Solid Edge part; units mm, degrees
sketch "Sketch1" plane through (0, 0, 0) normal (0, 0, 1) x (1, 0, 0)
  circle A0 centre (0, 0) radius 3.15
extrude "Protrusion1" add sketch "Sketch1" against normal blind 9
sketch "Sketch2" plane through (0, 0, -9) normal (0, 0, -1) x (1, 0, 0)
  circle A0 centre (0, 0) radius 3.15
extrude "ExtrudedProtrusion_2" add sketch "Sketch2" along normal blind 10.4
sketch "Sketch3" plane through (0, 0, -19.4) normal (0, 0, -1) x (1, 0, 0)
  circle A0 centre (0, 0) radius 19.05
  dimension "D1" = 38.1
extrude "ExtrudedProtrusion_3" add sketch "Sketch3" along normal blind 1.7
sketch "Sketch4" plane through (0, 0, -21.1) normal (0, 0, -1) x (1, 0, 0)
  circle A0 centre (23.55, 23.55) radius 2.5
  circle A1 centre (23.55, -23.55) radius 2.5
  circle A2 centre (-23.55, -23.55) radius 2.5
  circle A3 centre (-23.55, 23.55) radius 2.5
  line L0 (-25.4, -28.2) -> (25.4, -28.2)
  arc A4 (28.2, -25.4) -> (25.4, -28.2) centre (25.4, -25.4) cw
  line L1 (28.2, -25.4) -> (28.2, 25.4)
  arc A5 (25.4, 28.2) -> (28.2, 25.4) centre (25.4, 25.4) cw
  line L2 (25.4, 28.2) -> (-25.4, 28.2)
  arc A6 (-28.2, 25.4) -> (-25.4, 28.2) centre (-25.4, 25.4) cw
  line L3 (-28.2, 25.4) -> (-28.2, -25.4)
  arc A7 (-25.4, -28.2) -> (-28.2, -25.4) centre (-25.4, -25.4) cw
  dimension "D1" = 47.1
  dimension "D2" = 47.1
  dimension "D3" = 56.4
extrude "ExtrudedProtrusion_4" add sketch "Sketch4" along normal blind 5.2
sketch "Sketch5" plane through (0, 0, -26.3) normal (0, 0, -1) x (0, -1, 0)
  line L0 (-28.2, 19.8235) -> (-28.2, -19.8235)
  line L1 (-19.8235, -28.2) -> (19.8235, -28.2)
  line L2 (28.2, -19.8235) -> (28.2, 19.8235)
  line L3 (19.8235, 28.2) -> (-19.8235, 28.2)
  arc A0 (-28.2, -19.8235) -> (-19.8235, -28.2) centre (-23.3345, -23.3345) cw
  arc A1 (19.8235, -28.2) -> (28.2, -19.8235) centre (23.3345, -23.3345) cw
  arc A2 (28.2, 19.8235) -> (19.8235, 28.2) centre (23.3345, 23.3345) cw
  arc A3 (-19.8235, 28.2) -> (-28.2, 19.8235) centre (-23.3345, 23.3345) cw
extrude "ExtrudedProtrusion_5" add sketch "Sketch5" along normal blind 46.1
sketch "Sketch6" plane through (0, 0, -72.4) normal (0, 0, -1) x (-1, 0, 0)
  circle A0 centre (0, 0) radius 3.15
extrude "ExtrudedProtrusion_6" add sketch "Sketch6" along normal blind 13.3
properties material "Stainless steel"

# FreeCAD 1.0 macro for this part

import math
import FreeCAD as App
import Part
import Sketcher
Q = App.Units.Quantity

doc = App.newDocument("Part")
body = doc.addObject("PartDesign::Body", "Body")

sketch1 = body.newObject("Sketcher::SketchObject", "Sketch")
sketch1.AttachmentSupport = (doc.getObject("XY_Plane"), [""])
sketch1.MapMode = "FlatFace"
sketch1.addGeometry(Part.Circle(App.Vector(0, 0, 0), App.Vector(0, 0, 1), 3.1), False)
sketch1.addConstraint([
    Sketcher.Constraint("Coincident", 0, 3, -1, 1),
    Sketcher.Constraint("Diameter", 0, Q("6.3 mm")),
])
pad1 = body.newObject("PartDesign::Pad", "Pad")
pad1.Profile = sketch1
pad1.Length = 9
pad1.Reversed = True

sketch2 = body.newObject("Sketcher::SketchObject", "Sketch001")
sketch2.AttachmentSupport = (doc.getObject("XY_Plane"), [""])
sketch2.MapMode = "FlatFace"
sketch2.AttachmentOffset = App.Placement(App.Vector(0, 0, -9), App.Rotation())
sketch2.addGeometry(Part.Circle(App.Vector(0, 0, 0), App.Vector(0, 0, 1), 3.1), False)
sketch2.addConstraint([
    Sketcher.Constraint("Coincident", 0, 3, -1, 1),
    Sketcher.Constraint("Diameter", 0, Q("6.3 mm")),
])
pad2 = body.newObject("PartDesign::Pad", "Pad001")
pad2.Profile = sketch2
pad2.Length = 10.4
pad2.Reversed = True

sketch3 = body.newObject("Sketcher::SketchObject", "Sketch002")
sketch3.AttachmentSupport = (doc.getObject("XY_Plane"), [""])
sketch3.MapMode = "FlatFace"
sketch3.AttachmentOffset = App.Placement(App.Vector(0, 0, -19.4), App.Rotation())
sketch3.addGeometry(Part.Circle(App.Vector(0, 0, 0), App.Vector(0, 0, 1), 19), False)
sketch3.addConstraint([
    Sketcher.Constraint("Coincident", 0, 3, -1, 1),
    Sketcher.Constraint("Diameter", 0, Q("38.1 mm")),
])
pad3 = body.newObject("PartDesign::Pad", "Pad002")
pad3.Profile = sketch3
pad3.Length = 1.7
pad3.Reversed = True

sketch4 = body.newObject("Sketcher::SketchObject", "Sketch003")
sketch4.AttachmentSupport = (doc.getObject("XY_Plane"), [""])
sketch4.MapMode = "FlatFace"
sketch4.AttachmentOffset = App.Placement(App.Vector(0, 0, -21.1), App.Rotation())
sketch4.addGeometry([
    Part.ArcOfCircle(Part.Circle(App.Vector(-25.4, 25.4, 0), App.Vector(0, 0, 1), 2.8), math.radians(90), math.radians(180)),
    Part.LineSegment(App.Vector(-25.4, 28.2, 0), App.Vector(25.4, 28.2, 0)),
    Part.ArcOfCircle(Part.Circle(App.Vector(25.4, 25.4, 0), App.Vector(0, 0, 1), 2.8), math.radians(0), math.radians(90)),
    Part.LineSegment(App.Vector(28.2, 25.4, 0), App.Vector(28.2, -25.4, 0)),
    Part.ArcOfCircle(Part.Circle(App.Vector(25.4, -25.4, 0), App.Vector(0, 0, 1), 2.8), math.radians(-90), math.radians(0)),
    Part.LineSegment(App.Vector(25.4, -28.2, 0), App.Vector(-25.4, -28.2, 0)),
    Part.ArcOfCircle(Part.Circle(App.Vector(-25.4, -25.4, 0), App.Vector(0, 0, 1), 2.8), math.radians(180), math.radians(270)),
    Part.LineSegment(App.Vector(-28.2, -25.4, 0), App.Vector(-28.2, 25.4, 0)),
    Part.Circle(App.Vector(-23.6, 23.6, 0), App.Vector(0, 0, 1), 2.5),
    Part.Circle(App.Vector(23.6, 23.6, 0), App.Vector(0, 0, 1), 2.5),
    Part.Circle(App.Vector(-23.6, -23.6, 0), App.Vector(0, 0, 1), 2.5),
    Part.Circle(App.Vector(23.6, -23.6, 0), App.Vector(0, 0, 1), 2.5),
], False)
sketch4.addConstraint([
    Sketcher.Constraint("Tangent", 0, 1, 1, 1),
    Sketcher.Constraint("Tangent", 1, 2, 2, 2),
    Sketcher.Constraint("Tangent", 2, 1, 3, 1),
    Sketcher.Constraint("Tangent", 3, 2, 4, 2),
    Sketcher.Constraint("Tangent", 4, 1, 5, 1),
    Sketcher.Constraint("Tangent", 5, 2, 6, 2),
    Sketcher.Constraint("Tangent", 6, 1, 7, 1),
    Sketcher.Constraint("Tangent", 7, 2, 0, 2),
    Sketcher.Constraint("Horizontal", 1),
    Sketcher.Constraint("Vertical", 3),
    Sketcher.Constraint("Horizontal", 5),
    Sketcher.Constraint("Vertical", 7),
    Sketcher.Constraint("Equal", 0, 2),
    Sketcher.Constraint("Equal", 2, 4),
    Sketcher.Constraint("Equal", 4, 6),
    Sketcher.Constraint("Equal", 8, 9),
    Sketcher.Constraint("Equal", 9, 10),
    Sketcher.Constraint("Equal", 10, 11),
    Sketcher.Constraint("Symmetric", 0, 3, 4, 3, -1, 1),
    Sketcher.Constraint("Symmetric", 9, 3, 10, 3, -1, 1),
    Sketcher.Constraint("Symmetric", 8, 3, 11, 3, -1, 1),
    Sketcher.Constraint("Symmetric", 8, 3, 9, 3, -2),
    Sketcher.Constraint("Equal", 5, 3),
    Sketcher.Constraint("Diameter", 8, Q("5 mm")),
    Sketcher.Constraint("Radius", 0, Q("2.8 mm")),
    Sketcher.Constraint("DistanceX", 1, 1, 1, 2, Q("50.8 mm")),
    Sketcher.Constraint("DistanceX", 8, 3, 9, 3, Q("47.1 mm")),
    Sketcher.Constraint("DistanceY", 10, 3, 8, 3, Q("47.1 mm")),
])
pad4 = body.newObject("PartDesign::Pad", "Pad003")
pad4.Profile = sketch4
pad4.Length = 5.2
pad4.Reversed = True

sketch5 = body.newObject("Sketcher::SketchObject", "Sketch004")
sketch5.AttachmentSupport = (doc.getObject("XY_Plane"), [""])
sketch5.MapMode = "FlatFace"
sketch5.AttachmentOffset = App.Placement(App.Vector(0, 0, -26.3), App.Rotation())
sketch5.addGeometry([
    Part.ArcOfCircle(Part.Circle(App.Vector(-23, 23, 0), App.Vector(0, 0, 1), 6), math.radians(-144), math.radians(54)),
    Part.LineSegment(App.Vector(-20, 28, 0), App.Vector(20, 28, 0)),
    Part.ArcOfCircle(Part.Circle(App.Vector(23, 23, 0), App.Vector(0, 0, 1), 6), math.radians(126), math.radians(324)),
    Part.LineSegment(App.Vector(28, 20, 0), App.Vector(28, -20, 0)),
    Part.ArcOfCircle(Part.Circle(App.Vector(23, -23, 0), App.Vector(0, 0, 1), 6), math.radians(36), math.radians(234)),
    Part.LineSegment(App.Vector(20, -28, 0), App.Vector(-20, -28, 0)),
    Part.ArcOfCircle(Part.Circle(App.Vector(-23, -23, 0), App.Vector(0, 0, 1), 6), math.radians(-54), math.radians(144)),
    Part.LineSegment(App.Vector(-28, -20, 0), App.Vector(-28, 20, 0)),
], False)
sketch5.addConstraint([
    Sketcher.Constraint("Coincident", 0, 2, 1, 1),
    Sketcher.Constraint("Coincident", 1, 2, 2, 1),
    Sketcher.Constraint("Coincident", 2, 2, 3, 1),
    Sketcher.Constraint("Coincident", 3, 2, 4, 1),
    Sketcher.Constraint("Coincident", 4, 2, 5, 1),
    Sketcher.Constraint("Coincident", 5, 2, 6, 1),
    Sketcher.Constraint("Coincident", 6, 2, 7, 1),
    Sketcher.Constraint("Coincident", 7, 2, 0, 1),
    Sketcher.Constraint("Horizontal", 1),
    Sketcher.Constraint("Vertical", 3),
    Sketcher.Constraint("Horizontal", 5),
    Sketcher.Constraint("Vertical", 7),
    Sketcher.Constraint("Equal", 0, 2),
    Sketcher.Constraint("Equal", 2, 4),
    Sketcher.Constraint("Equal", 4, 6),
    Sketcher.Constraint("Symmetric", 0, 3, 4, 3, -1, 1),
    Sketcher.Constraint("Symmetric", 2, 3, 6, 3, -1, 1),
    Sketcher.Constraint("Symmetric", 0, 3, 2, 3, -2),
    Sketcher.Constraint("Horizontal", 3, 2, 6, 2),
    Sketcher.Constraint("Vertical", 1, 2, 4, 2),
    Sketcher.Constraint("Equal", 5, 3),
    Sketcher.Constraint("Radius", 0, Q("6 mm")),
    Sketcher.Constraint("DistanceY", -1, 1, 0, 2, Q("28.2 mm")),
    Sketcher.Constraint("DistanceX", -1, 1, 2, 2, Q("28.2 mm")),
    Sketcher.Constraint("DistanceX", 1, 1, 1, 2, Q("39.647 mm")),
])
pad5 = body.newObject("PartDesign::Pad", "Pad004")
pad5.Profile = sketch5
pad5.Length = 46.1
pad5.Reversed = True

sketch6 = body.newObject("Sketcher::SketchObject", "Sketch005")
sketch6.AttachmentSupport = (doc.getObject("XY_Plane"), [""])
sketch6.MapMode = "FlatFace"
sketch6.AttachmentOffset = App.Placement(App.Vector(0, 0, -72.4), App.Rotation())
sketch6.addGeometry(Part.Circle(App.Vector(0, 0, 0), App.Vector(0, 0, 1), 3.1), False)
sketch6.addConstraint([
    Sketcher.Constraint("Coincident", 0, 3, -1, 1),
    Sketcher.Constraint("Diameter", 0, Q("6.3 mm")),
])
pad6 = body.newObject("PartDesign::Pad", "Pad005")
pad6.Profile = sketch6
pad6.Length = 13.3
pad6.Reversed = True

doc.recompute()
